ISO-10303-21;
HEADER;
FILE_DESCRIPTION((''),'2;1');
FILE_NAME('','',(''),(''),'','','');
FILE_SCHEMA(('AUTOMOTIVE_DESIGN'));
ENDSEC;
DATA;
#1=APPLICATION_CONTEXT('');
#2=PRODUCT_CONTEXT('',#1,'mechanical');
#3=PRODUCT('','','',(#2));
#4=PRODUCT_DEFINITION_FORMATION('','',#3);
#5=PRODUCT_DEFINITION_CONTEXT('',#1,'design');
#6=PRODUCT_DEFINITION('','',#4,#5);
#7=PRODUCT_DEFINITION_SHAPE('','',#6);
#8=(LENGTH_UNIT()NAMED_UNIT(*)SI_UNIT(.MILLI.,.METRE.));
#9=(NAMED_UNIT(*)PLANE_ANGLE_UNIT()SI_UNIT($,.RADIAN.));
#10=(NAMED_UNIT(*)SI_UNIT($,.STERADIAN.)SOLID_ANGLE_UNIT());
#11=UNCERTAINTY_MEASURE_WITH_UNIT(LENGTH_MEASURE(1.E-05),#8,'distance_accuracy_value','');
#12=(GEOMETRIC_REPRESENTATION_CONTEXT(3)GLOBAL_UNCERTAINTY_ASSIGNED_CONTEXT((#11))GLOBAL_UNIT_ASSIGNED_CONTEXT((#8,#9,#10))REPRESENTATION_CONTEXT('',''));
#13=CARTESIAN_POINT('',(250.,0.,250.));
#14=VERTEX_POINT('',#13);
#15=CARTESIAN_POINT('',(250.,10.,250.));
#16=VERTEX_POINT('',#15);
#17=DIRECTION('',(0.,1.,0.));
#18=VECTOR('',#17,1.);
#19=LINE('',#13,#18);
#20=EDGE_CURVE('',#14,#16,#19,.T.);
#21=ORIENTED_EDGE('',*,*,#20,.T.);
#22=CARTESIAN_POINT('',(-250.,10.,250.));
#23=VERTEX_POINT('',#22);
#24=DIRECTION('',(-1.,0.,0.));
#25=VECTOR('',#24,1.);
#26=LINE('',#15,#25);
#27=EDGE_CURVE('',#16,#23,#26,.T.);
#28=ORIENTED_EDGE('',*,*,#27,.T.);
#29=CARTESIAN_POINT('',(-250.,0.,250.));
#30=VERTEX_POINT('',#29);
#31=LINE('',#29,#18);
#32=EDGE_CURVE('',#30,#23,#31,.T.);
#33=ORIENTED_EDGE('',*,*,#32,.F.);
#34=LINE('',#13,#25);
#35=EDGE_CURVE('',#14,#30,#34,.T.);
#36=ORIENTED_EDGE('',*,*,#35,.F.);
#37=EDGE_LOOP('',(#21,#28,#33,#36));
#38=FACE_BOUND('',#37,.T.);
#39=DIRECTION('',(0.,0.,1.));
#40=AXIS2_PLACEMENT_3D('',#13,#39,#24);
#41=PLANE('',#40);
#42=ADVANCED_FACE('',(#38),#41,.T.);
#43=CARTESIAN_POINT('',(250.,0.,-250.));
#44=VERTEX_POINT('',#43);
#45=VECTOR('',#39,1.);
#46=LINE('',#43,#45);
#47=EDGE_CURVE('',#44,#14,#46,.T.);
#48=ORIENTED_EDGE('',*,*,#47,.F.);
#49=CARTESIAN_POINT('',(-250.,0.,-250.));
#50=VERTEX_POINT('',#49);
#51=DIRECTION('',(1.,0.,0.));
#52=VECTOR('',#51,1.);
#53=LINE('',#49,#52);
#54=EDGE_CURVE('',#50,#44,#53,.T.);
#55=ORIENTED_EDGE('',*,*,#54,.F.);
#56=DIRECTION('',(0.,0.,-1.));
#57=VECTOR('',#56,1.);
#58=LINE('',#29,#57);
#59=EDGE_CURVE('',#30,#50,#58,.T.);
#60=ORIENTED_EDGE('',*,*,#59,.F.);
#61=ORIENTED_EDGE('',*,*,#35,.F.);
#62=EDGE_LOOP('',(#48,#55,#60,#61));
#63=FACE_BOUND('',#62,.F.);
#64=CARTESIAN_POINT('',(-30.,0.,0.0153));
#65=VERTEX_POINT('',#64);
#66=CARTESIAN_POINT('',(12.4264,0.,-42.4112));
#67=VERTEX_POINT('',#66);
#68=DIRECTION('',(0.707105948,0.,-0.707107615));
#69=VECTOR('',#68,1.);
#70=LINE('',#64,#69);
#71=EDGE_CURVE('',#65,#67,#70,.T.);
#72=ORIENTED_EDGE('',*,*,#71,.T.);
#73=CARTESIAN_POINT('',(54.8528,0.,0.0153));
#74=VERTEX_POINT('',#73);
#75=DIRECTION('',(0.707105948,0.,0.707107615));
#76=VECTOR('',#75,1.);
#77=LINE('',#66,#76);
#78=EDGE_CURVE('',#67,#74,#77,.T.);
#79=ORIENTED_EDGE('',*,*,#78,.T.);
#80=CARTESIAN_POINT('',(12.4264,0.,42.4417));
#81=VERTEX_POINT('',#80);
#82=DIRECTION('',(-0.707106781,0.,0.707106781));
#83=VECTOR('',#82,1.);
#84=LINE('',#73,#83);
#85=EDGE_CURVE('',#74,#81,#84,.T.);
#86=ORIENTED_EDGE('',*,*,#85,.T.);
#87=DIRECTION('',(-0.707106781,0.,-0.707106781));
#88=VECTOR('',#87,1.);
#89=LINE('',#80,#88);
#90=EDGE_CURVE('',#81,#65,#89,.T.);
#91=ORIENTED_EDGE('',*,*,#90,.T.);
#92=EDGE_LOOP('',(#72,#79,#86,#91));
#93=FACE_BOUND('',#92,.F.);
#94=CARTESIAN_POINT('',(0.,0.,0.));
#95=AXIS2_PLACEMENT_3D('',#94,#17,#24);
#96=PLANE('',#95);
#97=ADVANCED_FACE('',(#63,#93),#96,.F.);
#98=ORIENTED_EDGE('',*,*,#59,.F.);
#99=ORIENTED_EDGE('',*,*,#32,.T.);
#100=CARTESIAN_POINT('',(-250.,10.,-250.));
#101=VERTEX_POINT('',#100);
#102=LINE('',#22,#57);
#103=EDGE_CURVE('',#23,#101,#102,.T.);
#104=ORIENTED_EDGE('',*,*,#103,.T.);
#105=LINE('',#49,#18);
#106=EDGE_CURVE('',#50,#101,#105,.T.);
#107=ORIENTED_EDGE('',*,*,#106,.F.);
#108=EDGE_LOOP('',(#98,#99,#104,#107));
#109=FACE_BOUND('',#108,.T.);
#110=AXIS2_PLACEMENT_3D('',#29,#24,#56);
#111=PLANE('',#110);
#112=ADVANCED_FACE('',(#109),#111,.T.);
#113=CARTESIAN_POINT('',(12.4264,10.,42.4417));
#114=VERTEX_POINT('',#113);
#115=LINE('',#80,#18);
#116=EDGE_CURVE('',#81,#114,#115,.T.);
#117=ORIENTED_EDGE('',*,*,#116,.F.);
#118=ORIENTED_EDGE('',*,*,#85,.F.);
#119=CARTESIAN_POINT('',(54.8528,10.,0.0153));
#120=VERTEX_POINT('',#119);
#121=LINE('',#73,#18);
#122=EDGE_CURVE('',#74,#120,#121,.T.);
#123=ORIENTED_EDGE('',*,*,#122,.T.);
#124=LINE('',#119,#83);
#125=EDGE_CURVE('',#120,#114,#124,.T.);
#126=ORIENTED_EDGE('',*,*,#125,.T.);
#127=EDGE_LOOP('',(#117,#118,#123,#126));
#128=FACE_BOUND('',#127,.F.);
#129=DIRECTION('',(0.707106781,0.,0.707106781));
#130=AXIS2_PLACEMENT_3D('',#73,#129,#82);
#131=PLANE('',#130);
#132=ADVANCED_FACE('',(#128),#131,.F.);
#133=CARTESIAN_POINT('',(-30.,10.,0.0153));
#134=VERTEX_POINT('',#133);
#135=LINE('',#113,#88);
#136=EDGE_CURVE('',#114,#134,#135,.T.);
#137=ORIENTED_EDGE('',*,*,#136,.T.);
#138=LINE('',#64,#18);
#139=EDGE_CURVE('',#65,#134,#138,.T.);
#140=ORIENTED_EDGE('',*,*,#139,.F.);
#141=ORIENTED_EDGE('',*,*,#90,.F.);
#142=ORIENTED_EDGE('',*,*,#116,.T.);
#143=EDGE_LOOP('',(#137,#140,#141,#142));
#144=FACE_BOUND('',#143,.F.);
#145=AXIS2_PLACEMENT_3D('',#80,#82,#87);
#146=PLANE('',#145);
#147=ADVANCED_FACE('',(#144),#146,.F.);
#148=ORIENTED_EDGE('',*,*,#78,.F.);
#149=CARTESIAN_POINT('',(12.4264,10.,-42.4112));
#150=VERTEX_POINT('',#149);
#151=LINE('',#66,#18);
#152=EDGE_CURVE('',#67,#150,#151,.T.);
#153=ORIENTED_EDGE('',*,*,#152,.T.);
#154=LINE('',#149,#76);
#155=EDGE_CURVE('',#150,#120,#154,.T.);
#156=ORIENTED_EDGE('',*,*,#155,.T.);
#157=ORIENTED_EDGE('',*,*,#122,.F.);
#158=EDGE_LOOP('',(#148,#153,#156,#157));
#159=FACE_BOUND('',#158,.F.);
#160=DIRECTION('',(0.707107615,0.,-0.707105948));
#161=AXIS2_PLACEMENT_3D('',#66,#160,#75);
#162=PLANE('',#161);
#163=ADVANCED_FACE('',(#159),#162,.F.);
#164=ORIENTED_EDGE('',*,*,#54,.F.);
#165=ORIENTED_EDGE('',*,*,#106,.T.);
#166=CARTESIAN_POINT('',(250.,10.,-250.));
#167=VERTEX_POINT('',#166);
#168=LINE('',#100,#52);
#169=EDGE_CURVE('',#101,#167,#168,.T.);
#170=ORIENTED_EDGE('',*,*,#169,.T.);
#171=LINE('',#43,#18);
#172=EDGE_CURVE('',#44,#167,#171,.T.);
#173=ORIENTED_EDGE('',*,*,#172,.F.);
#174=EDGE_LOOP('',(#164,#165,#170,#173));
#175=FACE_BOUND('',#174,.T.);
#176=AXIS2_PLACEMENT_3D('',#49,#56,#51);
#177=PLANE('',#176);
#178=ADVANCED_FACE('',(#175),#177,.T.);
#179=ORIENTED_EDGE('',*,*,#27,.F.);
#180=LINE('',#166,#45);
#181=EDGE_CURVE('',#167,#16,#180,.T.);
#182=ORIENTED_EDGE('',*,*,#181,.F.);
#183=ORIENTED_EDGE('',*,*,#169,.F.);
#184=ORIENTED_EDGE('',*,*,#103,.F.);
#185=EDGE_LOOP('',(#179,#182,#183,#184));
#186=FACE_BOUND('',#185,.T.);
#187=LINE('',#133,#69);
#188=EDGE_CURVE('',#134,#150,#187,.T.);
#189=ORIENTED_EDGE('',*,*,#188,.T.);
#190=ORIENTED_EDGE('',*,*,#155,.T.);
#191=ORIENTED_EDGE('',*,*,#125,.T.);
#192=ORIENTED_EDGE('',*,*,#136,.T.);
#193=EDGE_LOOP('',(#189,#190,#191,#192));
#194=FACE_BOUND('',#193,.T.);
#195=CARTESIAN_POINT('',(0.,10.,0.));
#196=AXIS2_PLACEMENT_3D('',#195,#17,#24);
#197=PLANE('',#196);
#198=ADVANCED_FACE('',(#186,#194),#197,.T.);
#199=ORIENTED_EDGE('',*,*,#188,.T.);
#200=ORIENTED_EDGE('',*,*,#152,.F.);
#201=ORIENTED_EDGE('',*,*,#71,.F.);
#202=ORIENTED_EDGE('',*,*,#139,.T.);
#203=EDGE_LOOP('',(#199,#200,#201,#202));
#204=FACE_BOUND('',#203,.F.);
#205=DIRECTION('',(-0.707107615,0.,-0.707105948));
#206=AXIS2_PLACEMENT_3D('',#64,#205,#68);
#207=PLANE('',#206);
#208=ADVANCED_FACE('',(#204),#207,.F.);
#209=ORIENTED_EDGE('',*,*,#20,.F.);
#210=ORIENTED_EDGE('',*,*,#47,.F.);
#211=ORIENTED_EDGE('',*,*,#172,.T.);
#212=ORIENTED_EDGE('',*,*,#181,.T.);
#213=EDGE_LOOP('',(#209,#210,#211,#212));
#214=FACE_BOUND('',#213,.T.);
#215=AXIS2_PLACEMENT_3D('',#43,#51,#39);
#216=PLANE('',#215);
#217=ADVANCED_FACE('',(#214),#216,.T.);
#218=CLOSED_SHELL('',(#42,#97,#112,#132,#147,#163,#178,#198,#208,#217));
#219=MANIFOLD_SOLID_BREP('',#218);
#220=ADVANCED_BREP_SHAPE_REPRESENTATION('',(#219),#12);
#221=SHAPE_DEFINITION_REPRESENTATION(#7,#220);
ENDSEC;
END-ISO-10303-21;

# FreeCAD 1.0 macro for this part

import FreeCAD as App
import Part
import Sketcher

V = App.Vector


def add_polygon(sketch, points):
    """Adds a closed chain of lines whose ends are joined by coincident constraints."""
    first, n = sketch.GeometryCount, len(points)
    for a, b in zip(points, points[1:] + points[:1]):
        sketch.addGeometry(Part.LineSegment(App.Vector(*a, 0), App.Vector(*b, 0)), False)
    for i in range(n):
        sketch.addConstraint(Sketcher.Constraint("Coincident", first + i, 2, first + (i + 1) % n, 1))

doc = App.newDocument("Part")
params = doc.addObject("Spreadsheet::Sheet", "Params")
for row, (alias, value) in enumerate([
    ("sketch1_width", "500 mm"),
    ("sketch1_length", "60 mm"),
    ("pad1_length", "10 mm"),
], start=1):
    params.set(f"A{row}", alias)
    params.set(f"B{row}", "=" + value)
    params.setAlias(f"B{row}", alias)

body = doc.addObject("PartDesign::Body", "Body")

sketch1 = doc.addObject("Sketcher::SketchObject", "Sketch")
body.addObject(sketch1)
sketch1.AttachmentSupport = (doc.XZ_Plane, [""])
sketch1.MapMode = "FlatFace"
add_polygon(sketch1, [(-250, 250), (250, 250), (250, -250), (-250, -250)])
add_polygon(sketch1, [(55, 0), (12, 42), (-30, 0), (12, -42)])
sketch1.addConstraint([
    Sketcher.Constraint("Horizontal", 0),
    Sketcher.Constraint("Vertical", 1),
    Sketcher.Constraint("Horizontal", 2),
    Sketcher.Constraint("Vertical", 3),
    Sketcher.Constraint("Symmetric", 0, 2, 2, 2, -1, 1),
    Sketcher.Constraint("Perpendicular", 4, 5),
    Sketcher.Constraint("Perpendicular", 5, 6),
    Sketcher.Constraint("Perpendicular", 6, 7),
    Sketcher.Constraint("Horizontal", 5, 2, 7, 2),
    Sketcher.Constraint("Vertical", 4, 2, 6, 2),
    Sketcher.Constraint("Equal", 2, 1),
    Sketcher.Constraint("DistanceX", 0, 1, 0, 2, 500.0),
    Sketcher.Constraint("Distance", 4, 60.0),
    Sketcher.Constraint("DistanceX", 5, 2, -1, 1, 30.0),
    Sketcher.Constraint("DistanceY", -1, 1, 4, 2, 42.4417),
])
sketch1.setExpression("Constraints[19]", "Params.sketch1_width")
sketch1.setExpression("Constraints[20]", "Params.sketch1_length")
pad1 = doc.addObject("PartDesign::Pad", "Pad")
body.addObject(pad1)
pad1.Profile = sketch1
pad1.setExpression("Length", "Params.pad1_length")
pad1.Reversed = True

doc.recompute()
